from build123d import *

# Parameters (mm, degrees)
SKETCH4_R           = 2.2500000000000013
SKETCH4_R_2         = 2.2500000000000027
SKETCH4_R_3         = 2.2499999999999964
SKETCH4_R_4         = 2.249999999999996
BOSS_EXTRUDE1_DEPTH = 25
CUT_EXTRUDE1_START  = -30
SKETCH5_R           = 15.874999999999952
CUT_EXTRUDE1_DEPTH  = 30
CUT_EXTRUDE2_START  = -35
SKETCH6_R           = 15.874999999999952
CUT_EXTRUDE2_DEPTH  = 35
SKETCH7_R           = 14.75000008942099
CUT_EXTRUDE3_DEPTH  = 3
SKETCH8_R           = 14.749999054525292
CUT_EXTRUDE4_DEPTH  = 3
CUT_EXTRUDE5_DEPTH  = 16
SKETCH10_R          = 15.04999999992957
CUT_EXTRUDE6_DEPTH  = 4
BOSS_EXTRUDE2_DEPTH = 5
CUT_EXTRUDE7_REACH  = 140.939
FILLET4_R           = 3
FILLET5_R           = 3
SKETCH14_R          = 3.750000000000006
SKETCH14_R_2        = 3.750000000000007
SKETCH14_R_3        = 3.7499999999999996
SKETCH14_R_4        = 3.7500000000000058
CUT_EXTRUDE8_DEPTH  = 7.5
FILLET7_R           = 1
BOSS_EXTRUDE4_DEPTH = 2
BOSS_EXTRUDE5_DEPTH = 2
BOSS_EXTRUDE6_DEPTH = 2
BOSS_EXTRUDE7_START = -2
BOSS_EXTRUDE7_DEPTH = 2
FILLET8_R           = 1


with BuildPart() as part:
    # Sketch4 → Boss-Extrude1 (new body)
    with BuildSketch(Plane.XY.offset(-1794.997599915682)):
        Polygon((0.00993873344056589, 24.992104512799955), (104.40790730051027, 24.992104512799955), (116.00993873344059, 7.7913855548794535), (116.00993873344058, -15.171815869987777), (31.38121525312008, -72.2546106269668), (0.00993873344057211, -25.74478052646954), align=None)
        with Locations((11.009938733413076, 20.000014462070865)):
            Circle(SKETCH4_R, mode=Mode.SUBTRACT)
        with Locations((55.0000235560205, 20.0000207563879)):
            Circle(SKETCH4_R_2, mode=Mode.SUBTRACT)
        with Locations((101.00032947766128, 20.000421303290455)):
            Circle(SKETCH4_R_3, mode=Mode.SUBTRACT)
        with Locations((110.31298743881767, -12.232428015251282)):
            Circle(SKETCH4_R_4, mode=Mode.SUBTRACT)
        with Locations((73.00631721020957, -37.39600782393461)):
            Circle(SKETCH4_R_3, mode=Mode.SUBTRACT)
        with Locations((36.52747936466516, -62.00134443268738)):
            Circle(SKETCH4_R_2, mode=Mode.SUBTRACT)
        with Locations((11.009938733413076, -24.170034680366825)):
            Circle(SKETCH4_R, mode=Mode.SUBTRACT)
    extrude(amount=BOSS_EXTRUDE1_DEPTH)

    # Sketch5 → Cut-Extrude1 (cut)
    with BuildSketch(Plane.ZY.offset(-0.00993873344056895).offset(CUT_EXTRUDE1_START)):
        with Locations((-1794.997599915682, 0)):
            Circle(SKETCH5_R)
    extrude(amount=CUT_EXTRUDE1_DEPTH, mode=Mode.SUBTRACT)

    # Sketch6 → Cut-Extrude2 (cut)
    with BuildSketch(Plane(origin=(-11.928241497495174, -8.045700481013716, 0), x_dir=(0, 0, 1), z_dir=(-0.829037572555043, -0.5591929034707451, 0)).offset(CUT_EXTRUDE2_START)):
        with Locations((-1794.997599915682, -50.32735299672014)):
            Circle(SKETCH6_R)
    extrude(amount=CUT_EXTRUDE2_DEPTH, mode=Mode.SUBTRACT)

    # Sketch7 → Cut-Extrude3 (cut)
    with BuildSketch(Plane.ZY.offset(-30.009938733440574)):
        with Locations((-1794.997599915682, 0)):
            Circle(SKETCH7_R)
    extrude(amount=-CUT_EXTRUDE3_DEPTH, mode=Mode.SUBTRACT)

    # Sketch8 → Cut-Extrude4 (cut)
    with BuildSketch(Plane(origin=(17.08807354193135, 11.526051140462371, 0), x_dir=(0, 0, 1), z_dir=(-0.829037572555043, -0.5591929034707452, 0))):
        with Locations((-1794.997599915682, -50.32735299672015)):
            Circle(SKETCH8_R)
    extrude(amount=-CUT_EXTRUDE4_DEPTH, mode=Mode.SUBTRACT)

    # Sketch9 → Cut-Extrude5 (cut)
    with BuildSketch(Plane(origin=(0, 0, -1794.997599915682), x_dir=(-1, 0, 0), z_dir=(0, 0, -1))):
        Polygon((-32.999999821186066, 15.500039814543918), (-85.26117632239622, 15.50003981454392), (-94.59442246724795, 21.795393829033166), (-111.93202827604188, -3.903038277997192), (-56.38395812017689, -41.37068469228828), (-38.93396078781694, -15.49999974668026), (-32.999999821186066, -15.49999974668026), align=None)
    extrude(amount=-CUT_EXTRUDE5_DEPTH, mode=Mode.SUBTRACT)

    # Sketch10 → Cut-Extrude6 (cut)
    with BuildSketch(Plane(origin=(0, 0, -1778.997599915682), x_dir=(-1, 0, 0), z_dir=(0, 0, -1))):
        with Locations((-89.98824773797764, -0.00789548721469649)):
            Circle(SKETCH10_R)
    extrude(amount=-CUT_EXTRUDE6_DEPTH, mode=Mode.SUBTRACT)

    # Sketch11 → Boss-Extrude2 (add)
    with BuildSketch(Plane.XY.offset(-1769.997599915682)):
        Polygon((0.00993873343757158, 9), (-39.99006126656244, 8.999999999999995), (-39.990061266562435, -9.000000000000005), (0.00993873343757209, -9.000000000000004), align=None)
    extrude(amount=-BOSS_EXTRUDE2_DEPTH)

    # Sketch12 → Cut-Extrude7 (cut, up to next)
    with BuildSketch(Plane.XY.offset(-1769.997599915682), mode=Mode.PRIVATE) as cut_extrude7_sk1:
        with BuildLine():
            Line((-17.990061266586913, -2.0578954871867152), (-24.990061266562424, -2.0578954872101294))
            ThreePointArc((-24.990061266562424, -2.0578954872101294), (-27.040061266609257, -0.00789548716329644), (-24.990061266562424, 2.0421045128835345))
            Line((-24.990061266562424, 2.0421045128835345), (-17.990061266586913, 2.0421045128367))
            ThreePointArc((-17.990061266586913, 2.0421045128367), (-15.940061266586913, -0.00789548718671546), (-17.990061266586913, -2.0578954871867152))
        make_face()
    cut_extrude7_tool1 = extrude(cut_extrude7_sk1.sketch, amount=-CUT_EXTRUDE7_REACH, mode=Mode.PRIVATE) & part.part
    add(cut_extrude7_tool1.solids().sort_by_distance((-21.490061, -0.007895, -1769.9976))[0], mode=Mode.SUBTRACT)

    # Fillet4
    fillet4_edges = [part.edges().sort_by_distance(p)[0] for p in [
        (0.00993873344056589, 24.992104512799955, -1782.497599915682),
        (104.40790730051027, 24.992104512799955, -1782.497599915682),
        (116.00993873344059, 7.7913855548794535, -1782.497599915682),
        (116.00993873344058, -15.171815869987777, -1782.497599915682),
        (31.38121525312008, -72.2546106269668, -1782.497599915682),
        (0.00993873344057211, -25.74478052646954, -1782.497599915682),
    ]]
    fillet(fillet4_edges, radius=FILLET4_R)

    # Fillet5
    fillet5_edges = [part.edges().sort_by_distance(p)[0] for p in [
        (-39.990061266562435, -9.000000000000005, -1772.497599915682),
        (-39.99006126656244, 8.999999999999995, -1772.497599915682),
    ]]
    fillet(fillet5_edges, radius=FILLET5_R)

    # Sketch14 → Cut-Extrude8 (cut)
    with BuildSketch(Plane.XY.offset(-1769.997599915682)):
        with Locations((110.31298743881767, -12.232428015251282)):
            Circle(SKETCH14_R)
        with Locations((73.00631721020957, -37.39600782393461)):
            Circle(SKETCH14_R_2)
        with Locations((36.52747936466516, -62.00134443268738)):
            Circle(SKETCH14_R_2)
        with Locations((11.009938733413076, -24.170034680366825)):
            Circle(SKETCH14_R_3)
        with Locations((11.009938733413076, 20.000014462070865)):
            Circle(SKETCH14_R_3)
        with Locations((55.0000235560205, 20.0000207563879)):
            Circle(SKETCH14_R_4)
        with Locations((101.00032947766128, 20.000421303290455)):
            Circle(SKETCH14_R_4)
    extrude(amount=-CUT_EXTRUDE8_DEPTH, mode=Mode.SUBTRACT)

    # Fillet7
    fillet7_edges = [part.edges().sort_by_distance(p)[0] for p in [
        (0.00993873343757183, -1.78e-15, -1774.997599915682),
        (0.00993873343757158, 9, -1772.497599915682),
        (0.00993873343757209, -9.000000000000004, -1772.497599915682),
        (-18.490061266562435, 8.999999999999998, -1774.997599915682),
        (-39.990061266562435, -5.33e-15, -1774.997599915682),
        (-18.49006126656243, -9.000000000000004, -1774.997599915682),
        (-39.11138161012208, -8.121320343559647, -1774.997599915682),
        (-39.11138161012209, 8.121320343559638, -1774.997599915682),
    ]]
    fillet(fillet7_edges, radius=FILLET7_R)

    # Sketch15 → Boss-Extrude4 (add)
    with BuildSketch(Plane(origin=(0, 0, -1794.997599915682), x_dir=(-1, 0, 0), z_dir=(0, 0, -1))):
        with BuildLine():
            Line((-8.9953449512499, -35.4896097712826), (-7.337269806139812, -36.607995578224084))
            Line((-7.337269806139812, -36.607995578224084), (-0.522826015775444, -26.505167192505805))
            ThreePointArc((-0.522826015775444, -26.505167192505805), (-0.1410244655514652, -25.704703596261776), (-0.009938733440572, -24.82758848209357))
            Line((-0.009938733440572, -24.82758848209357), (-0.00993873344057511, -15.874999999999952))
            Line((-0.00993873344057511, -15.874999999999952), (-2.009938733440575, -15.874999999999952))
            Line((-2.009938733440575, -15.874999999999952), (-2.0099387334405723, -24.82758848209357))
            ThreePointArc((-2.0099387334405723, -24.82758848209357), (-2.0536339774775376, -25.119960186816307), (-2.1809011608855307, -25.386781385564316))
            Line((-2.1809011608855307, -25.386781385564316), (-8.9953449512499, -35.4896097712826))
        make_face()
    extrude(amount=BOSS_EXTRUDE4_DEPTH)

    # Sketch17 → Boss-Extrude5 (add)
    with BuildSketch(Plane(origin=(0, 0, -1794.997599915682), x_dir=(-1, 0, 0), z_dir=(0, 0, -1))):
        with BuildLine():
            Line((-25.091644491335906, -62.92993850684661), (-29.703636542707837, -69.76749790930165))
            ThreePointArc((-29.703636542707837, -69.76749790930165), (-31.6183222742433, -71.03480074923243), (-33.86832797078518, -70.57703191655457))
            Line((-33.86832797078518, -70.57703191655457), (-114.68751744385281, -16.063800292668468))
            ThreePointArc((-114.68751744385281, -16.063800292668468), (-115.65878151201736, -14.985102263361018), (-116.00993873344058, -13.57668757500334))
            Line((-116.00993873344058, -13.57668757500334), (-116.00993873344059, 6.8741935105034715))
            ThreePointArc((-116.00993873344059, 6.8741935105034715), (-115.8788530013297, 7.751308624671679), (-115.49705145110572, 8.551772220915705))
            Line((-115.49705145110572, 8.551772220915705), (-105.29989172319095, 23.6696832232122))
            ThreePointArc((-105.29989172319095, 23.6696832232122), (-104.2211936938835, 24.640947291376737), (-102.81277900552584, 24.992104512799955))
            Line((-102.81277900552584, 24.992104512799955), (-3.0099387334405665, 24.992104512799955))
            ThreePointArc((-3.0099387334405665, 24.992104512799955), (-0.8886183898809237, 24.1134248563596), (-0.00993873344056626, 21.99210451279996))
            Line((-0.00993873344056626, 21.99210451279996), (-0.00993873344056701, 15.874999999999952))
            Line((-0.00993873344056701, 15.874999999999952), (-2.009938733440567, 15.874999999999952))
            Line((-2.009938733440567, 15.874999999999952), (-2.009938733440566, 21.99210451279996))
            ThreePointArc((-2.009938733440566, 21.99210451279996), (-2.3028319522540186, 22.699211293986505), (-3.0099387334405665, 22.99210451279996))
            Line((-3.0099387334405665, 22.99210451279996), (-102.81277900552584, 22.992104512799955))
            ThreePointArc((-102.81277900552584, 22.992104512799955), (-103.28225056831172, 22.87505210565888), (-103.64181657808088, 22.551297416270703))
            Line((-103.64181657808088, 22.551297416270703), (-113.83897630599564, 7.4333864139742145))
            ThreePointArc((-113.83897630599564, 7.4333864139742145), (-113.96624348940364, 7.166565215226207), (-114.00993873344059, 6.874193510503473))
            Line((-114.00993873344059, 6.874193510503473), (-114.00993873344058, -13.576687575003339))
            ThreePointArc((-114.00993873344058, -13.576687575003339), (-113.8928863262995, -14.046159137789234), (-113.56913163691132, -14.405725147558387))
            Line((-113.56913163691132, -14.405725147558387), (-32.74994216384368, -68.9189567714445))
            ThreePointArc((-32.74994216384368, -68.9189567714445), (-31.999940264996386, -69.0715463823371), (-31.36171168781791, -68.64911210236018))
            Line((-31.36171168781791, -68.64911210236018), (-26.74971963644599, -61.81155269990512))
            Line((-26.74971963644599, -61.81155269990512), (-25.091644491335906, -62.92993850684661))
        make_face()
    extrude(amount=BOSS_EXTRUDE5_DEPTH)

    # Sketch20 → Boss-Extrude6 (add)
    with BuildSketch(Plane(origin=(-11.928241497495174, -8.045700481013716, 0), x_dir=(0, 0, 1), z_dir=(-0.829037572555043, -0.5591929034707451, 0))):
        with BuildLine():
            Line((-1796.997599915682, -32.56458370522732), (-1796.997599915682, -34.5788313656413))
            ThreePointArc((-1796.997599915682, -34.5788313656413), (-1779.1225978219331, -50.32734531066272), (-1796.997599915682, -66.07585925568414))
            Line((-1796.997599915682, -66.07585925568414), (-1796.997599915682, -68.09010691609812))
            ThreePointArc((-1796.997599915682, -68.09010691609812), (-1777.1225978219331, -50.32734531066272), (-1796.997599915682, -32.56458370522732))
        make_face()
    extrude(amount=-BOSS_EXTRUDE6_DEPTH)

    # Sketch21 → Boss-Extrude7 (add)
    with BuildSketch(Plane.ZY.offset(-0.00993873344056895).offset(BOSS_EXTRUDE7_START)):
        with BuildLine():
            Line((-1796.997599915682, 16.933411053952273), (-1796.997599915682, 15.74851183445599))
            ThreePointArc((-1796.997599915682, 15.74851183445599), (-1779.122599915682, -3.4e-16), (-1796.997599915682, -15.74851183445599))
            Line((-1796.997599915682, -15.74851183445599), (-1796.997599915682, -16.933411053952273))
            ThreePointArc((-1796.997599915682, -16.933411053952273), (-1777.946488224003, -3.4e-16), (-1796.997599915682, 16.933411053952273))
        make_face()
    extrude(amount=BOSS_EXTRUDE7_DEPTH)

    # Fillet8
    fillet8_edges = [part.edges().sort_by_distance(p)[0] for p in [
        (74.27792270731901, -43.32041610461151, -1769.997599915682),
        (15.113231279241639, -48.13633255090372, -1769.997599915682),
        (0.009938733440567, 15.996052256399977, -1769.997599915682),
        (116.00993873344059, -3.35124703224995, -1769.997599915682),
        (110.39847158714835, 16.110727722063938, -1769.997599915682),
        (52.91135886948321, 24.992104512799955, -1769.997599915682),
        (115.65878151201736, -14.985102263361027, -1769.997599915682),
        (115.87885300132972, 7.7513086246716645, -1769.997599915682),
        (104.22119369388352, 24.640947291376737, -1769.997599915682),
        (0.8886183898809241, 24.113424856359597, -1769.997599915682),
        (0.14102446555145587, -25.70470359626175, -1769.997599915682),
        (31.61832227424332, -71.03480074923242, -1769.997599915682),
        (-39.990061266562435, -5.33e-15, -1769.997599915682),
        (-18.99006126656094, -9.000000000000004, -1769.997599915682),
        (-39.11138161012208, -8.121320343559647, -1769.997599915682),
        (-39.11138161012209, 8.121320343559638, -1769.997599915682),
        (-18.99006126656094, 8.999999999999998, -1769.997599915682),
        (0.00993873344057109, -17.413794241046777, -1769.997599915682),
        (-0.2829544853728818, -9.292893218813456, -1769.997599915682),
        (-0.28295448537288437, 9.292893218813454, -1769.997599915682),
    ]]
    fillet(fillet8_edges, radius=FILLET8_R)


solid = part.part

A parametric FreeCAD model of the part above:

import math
import FreeCAD as App
import Part
import Sketcher
from FreeCAD import Vector
Q = App.Units.Quantity


def edges_at(feature, points):
    """Names of the edges that pass closest to the given points."""
    edges = feature.Shape.Edges
    near = lambda p: min(range(len(edges)), key=lambda i: edges[i].distToShape(Part.Vertex(*p))[0])
    return sorted({f"Edge{near(p) + 1}" for p in points})

doc = App.newDocument("Part")
body = doc.addObject("PartDesign::Body", "Body")

sketch1 = doc.addObject("Sketcher::SketchObject", "Sketch")
body.addObject(sketch1)
sketch1.AttachmentSupport = (doc.XY_Plane, [""])
sketch1.MapMode = "FlatFace"
sketch1.AttachmentOffset = App.Placement(Vector(0, 0, -1794.9976), App.Rotation())
sketch1.addGeometry(Part.LineSegment(Vector(104.407907, 24.992105, 0), Vector(0.009939, 24.992105, 0)), False)
sketch1.addGeometry(Part.LineSegment(Vector(0.009939, 24.992105, 0), Vector(0.009939, -25.744781, 0)), False)
sketch1.addGeometry(Part.LineSegment(Vector(0.009939, -25.744781, 0), Vector(31.381215, -72.254611, 0)), False)
sketch1.addGeometry(Part.LineSegment(Vector(31.381215, -72.254611, 0), Vector(116.009939, -15.171816, 0)), False)
sketch1.addGeometry(Part.LineSegment(Vector(116.009939, -15.171816, 0), Vector(116.009939, 7.791386, 0)), False)
sketch1.addGeometry(Part.LineSegment(Vector(116.009939, 7.791386, 0), Vector(104.407907, 24.992105, 0)), False)
sketch1.addGeometry(Part.Circle(Vector(73.006317, -37.396008, 0), Vector(0, 0, 1), 2.25), False)
sketch1.addGeometry(Part.Circle(Vector(36.527479, -62.001344, 0), Vector(0, 0, 1), 2.25), False)
sketch1.addGeometry(Part.Circle(Vector(11.009939, -24.170035, 0), Vector(0, 0, 1), 2.25), False)
sketch1.addGeometry(Part.Circle(Vector(110.312987, -12.232428, 0), Vector(0, 0, 1), 2.25), False)
sketch1.addGeometry(Part.Circle(Vector(101.000329, 20.000421, 0), Vector(0, 0, 1), 2.25), False)
sketch1.addGeometry(Part.Circle(Vector(55.000024, 20.000021, 0), Vector(0, 0, 1), 2.25), False)
sketch1.addGeometry(Part.Circle(Vector(11.009939, 20.000014, 0), Vector(0, 0, 1), 2.25), False)
sketch1.addConstraint(Sketcher.Constraint("Coincident", 0, 2, 1, 1))
sketch1.addConstraint(Sketcher.Constraint("Coincident", 1, 2, 2, 1))
sketch1.addConstraint(Sketcher.Constraint("Coincident", 2, 2, 3, 1))
sketch1.addConstraint(Sketcher.Constraint("Coincident", 3, 2, 4, 1))
sketch1.addConstraint(Sketcher.Constraint("Coincident", 4, 2, 5, 1))
sketch1.addConstraint(Sketcher.Constraint("Coincident", 5, 2, 0, 1))
sketch1.addConstraint(Sketcher.Constraint("Horizontal", 0))
sketch1.addConstraint(Sketcher.Constraint("Vertical", 1))
sketch1.addConstraint(Sketcher.Constraint("Vertical", 4))
sketch1.addConstraint(Sketcher.Constraint("Equal", 6, 7))
sketch1.addConstraint(Sketcher.Constraint("Equal", 7, 8))
sketch1.addConstraint(Sketcher.Constraint("Equal", 8, 9))
sketch1.addConstraint(Sketcher.Constraint("Equal", 9, 10))
sketch1.addConstraint(Sketcher.Constraint("Equal", 10, 11))
sketch1.addConstraint(Sketcher.Constraint("Equal", 11, 12))
sketch1.addConstraint(Sketcher.Constraint("Perpendicular", 2, 3))
sketch1.addConstraint(Sketcher.Constraint("Perpendicular", 3, 5))
sketch1.addConstraint(Sketcher.Constraint("Vertical", 8, 3, 12, 3))
sketch1.addConstraint(Sketcher.Constraint("Diameter", 6, Q("4.5 mm")))
sketch1.addConstraint(Sketcher.Constraint("Angle", 2, Q("-56 deg")))
sketch1.addConstraint(Sketcher.Constraint("DistanceX", 0, 2, 12, 3, Q("11 mm")))
sketch1.addConstraint(Sketcher.Constraint("DistanceY", 4, 1, 4, 2, Q("22.963201 mm")))
sketch1.addConstraint(Sketcher.Constraint("DistanceX", 0, 2, 0, 1, Q("104.397969 mm")))
sketch1.addConstraint(Sketcher.Constraint("DistanceY", 11, 3, 10, 3, Q("0.000401 mm")))
sketch1.addConstraint(Sketcher.Constraint("DistanceY", 1, 2, 11, 3, Q("45.744801 mm")))
sketch1.addConstraint(Sketcher.Constraint("DistanceX", 2, 2, 6, 3, Q("41.625102 mm")))
sketch1.addConstraint(Sketcher.Constraint("Distance", 2, Q("56.100992 mm")))
sketch1.addConstraint(Sketcher.Constraint("DistanceY", 1, 2, 1, 1, Q("50.736885 mm")))
sketch1.addConstraint(Sketcher.Constraint("DistanceX", -1, 1, 7, 3, Q("36.527479 mm")))
sketch1.addConstraint(Sketcher.Constraint("DistanceX", -1, 1, 8, 3, Q("11.009939 mm")))
sketch1.addConstraint(Sketcher.Constraint("DistanceY", 9, 3, -1, 1, Q("12.232428 mm")))
sketch1.addConstraint(Sketcher.Constraint("DistanceX", -1, 1, 10, 3, Q("101.000329 mm")))
sketch1.addConstraint(Sketcher.Constraint("DistanceY", -1, 1, 10, 3, Q("20.000421 mm")))
sketch1.addConstraint(Sketcher.Constraint("DistanceY", 7, 3, 8, 3, Q("37.83131 mm")))
sketch1.addConstraint(Sketcher.Constraint("DistanceX", 6, 3, 9, 3, Q("37.30667 mm")))
sketch1.addConstraint(Sketcher.Constraint("DistanceY", 6, 3, 9, 3, Q("25.16358 mm")))
sketch1.addConstraint(Sketcher.Constraint("DistanceY", 8, 3, 12, 3, Q("44.170049 mm")))
sketch1.addConstraint(Sketcher.Constraint("DistanceY", 12, 3, 0, 2, Q("4.99209 mm")))
sketch1.addConstraint(Sketcher.Constraint("DistanceX", -1, 1, 11, 3, Q("55.000024 mm")))
pad1 = doc.addObject("PartDesign::Pad", "Pad")
body.addObject(pad1)
pad1.Profile = sketch1
pad1.Length = 25

sketch2 = doc.addObject("Sketcher::SketchObject", "Sketch001")
body.addObject(sketch2)
sketch2.AttachmentSupport = (doc.YZ_Plane, [""])
sketch2.MapMode = "FlatFace"
sketch2.AttachmentOffset = App.Placement(Vector(0, 0, 30.009939), App.Rotation())
sketch2.addGeometry(Part.Circle(Vector(0, -1794.9976, 0), Vector(0, 0, 1), 15.875), False)
sketch2.addConstraint(Sketcher.Constraint("PointOnObject", 0, 3, -2))
sketch2.addConstraint(Sketcher.Constraint("Diameter", 0, Q("31.75 mm")))
sketch2.addConstraint(Sketcher.Constraint("DistanceY", 0, 3, -1, 1, Q("1794.9976 mm")))
pocket1 = doc.addObject("PartDesign::Pocket", "Pocket")
body.addObject(pocket1)
pocket1.Profile = sketch2
pocket1.Length = 30

sketch3 = doc.addObject("Sketcher::SketchObject", "Sketch002")
body.addObject(sketch3)
sketch3.Placement = App.Placement(Vector(17.088074, 11.526051, 0), App.Rotation(Vector(0, 0, 1), Vector(-0.559192903, 0.829037573, 0), Vector(-0.829037573, -0.559192903, 0), "ZXY"))
sketch3.addGeometry(Part.Circle(Vector(-1795, -50, 0), Vector(0, 0, 1), 16), False)
sketch3.addConstraint(Sketcher.Constraint("Diameter", 0, Q("31.75 mm")))
sketch3.addConstraint(Sketcher.Constraint("DistanceX", 0, 3, -1, 1, Q("1794.9976 mm")))
sketch3.addConstraint(Sketcher.Constraint("DistanceY", 0, 3, -1, 1, Q("50.327353 mm")))
pocket2 = doc.addObject("PartDesign::Pocket", "Pocket001")
body.addObject(pocket2)
pocket2.Profile = sketch3
pocket2.Length = 35
pocket2.Reversed = True

sketch4 = doc.addObject("Sketcher::SketchObject", "Sketch003")
body.addObject(sketch4)
sketch4.AttachmentSupport = (doc.YZ_Plane, [""])
sketch4.MapMode = "FlatFace"
sketch4.AttachmentOffset = App.Placement(Vector(0, 0, 30.009939), App.Rotation())
sketch4.addGeometry(Part.Circle(Vector(0, -1794.9976, 0), Vector(0, 0, 1), 14.75), False)
sketch4.addConstraint(Sketcher.Constraint("PointOnObject", 0, 3, -2))
sketch4.addConstraint(Sketcher.Constraint("Diameter", 0, Q("29.5 mm")))
sketch4.addConstraint(Sketcher.Constraint("DistanceY", 0, 3, -1, 1, Q("1794.9976 mm")))
pocket3 = doc.addObject("PartDesign::Pocket", "Pocket002")
body.addObject(pocket3)
pocket3.Profile = sketch4
pocket3.Length = 3
pocket3.Reversed = True

sketch5 = doc.addObject("Sketcher::SketchObject", "Sketch004")
body.addObject(sketch5)
sketch5.Placement = App.Placement(Vector(17.088074, 11.526051, 0), App.Rotation(Vector(0, 0, 1), Vector(-0.559192903, 0.829037573, 0), Vector(-0.829037573, -0.559192903, 0), "ZXY"))
sketch5.addGeometry(Part.Circle(Vector(-1795, -50, 0), Vector(0, 0, 1), 15), False)
sketch5.addConstraint(Sketcher.Constraint("Diameter", 0, Q("29.499998 mm")))
sketch5.addConstraint(Sketcher.Constraint("DistanceX", 0, 3, -1, 1, Q("1794.9976 mm")))
sketch5.addConstraint(Sketcher.Constraint("DistanceY", 0, 3, -1, 1, Q("50.327353 mm")))
pocket4 = doc.addObject("PartDesign::Pocket", "Pocket003")
body.addObject(pocket4)
pocket4.Profile = sketch5
pocket4.Length = 3

sketch6 = doc.addObject("Sketcher::SketchObject", "Sketch005")
body.addObject(sketch6)
sketch6.AttachmentSupport = (doc.XY_Plane, [""])
sketch6.MapMode = "FlatFace"
sketch6.AttachmentOffset = App.Placement(Vector(0, 0, -1794.9976), App.Rotation())
sketch6.addGeometry(Part.LineSegment(Vector(33, 16, 0), Vector(85, 16, 0)), False)
sketch6.addGeometry(Part.LineSegment(Vector(85, 16, 0), Vector(95, 22, 0)), False)
sketch6.addGeometry(Part.LineSegment(Vector(95, 22, 0), Vector(112, -4, 0)), False)
sketch6.addGeometry(Part.LineSegment(Vector(112, -4, 0), Vector(56, -41, 0)), False)
sketch6.addGeometry(Part.LineSegment(Vector(56, -41, 0), Vector(39, -15, 0)), False)
sketch6.addGeometry(Part.LineSegment(Vector(39, -15, 0), Vector(33, -15, 0)), False)
sketch6.addGeometry(Part.LineSegment(Vector(33, -15, 0), Vector(33, 16, 0)), False)
sketch6.addConstraint(Sketcher.Constraint("Coincident", 0, 2, 1, 1))
sketch6.addConstraint(Sketcher.Constraint("Coincident", 1, 2, 2, 1))
sketch6.addConstraint(Sketcher.Constraint("Coincident", 2, 2, 3, 1))
sketch6.addConstraint(Sketcher.Constraint("Coincident", 3, 2, 4, 1))
sketch6.addConstraint(Sketcher.Constraint("Coincident", 4, 2, 5, 1))
sketch6.addConstraint(Sketcher.Constraint("Coincident", 5, 2, 6, 1))
sketch6.addConstraint(Sketcher.Constraint("Coincident", 6, 2, 0, 1))
sketch6.addConstraint(Sketcher.Constraint("Horizontal", 0))
sketch6.addConstraint(Sketcher.Constraint("Horizontal", 5))
sketch6.addConstraint(Sketcher.Constraint("Vertical", 6))
sketch6.addConstraint(Sketcher.Constraint("Parallel", 1, 3))
sketch6.addConstraint(Sketcher.Constraint("Perpendicular", 3, 4))
sketch6.addConstraint(Sketcher.Constraint("Angle", 1, Q("34 deg")))
sketch6.addConstraint(Sketcher.Constraint("DistanceX", -1, 1, 5, 2, Q("33 mm")))
sketch6.addConstraint(Sketcher.Constraint("DistanceY", 4, 2, -1, 1, Q("15.5 mm")))
sketch6.addConstraint(Sketcher.Constraint("DistanceX", 5, 2, 5, 1, Q("5.933961 mm")))
sketch6.addConstraint(Sketcher.Constraint("DistanceY", 6, 1, 6, 2, Q("31.00004 mm")))
sketch6.addConstraint(Sketcher.Constraint("Distance", 1, Q("11.257929 mm")))
sketch6.addConstraint(Sketcher.Constraint("Distance", 3, Q("67.003079 mm")))
sketch6.addConstraint(Sketcher.Constraint("DistanceX", 0, 1, 0, 2, Q("52.261177 mm")))
sketch6.addConstraint(Sketcher.Constraint("DistanceX", -1, 1, 2, 2, Q("111.932028 mm")))
pocket5 = doc.addObject("PartDesign::Pocket", "Pocket004")
body.addObject(pocket5)
pocket5.Profile = sketch6
pocket5.Length = 16
pocket5.Reversed = True

sketch7 = doc.addObject("Sketcher::SketchObject", "Sketch006")
body.addObject(sketch7)
sketch7.AttachmentSupport = (doc.XY_Plane, [""])
sketch7.MapMode = "FlatFace"
sketch7.AttachmentOffset = App.Placement(Vector(0, 0, -1778.9976), App.Rotation())
sketch7.addGeometry(Part.Circle(Vector(90, 0, 0), Vector(0, 0, 1), 15), False)
sketch7.addConstraint(Sketcher.Constraint("Diameter", 0, Q("30.1 mm")))
sketch7.addConstraint(Sketcher.Constraint("DistanceX", -1, 1, 0, 3, Q("89.988248 mm")))
sketch7.addConstraint(Sketcher.Constraint("DistanceY", 0, 3, -1, 1, Q("0.007895 mm")))
pocket6 = doc.addObject("PartDesign::Pocket", "Pocket005")
body.addObject(pocket6)
pocket6.Profile = sketch7
pocket6.Length = 4
pocket6.Reversed = True

sketch8 = doc.addObject("Sketcher::SketchObject", "Sketch007")
body.addObject(sketch8)
sketch8.AttachmentSupport = (doc.XY_Plane, [""])
sketch8.MapMode = "FlatFace"
sketch8.AttachmentOffset = App.Placement(Vector(0, 0, -1769.9976), App.Rotation())
sketch8.addGeometry(Part.LineSegment(Vector(0, 9, 0), Vector(-40, 9, 0)), False)
sketch8.addGeometry(Part.LineSegment(Vector(-40, 9, 0), Vector(-40, -9, 0)), False)
sketch8.addGeometry(Part.LineSegment(Vector(-40, -9, 0), Vector(0, -9, 0)), False)
sketch8.addGeometry(Part.LineSegment(Vector(0, -9, 0), Vector(0, 9, 0)), False)
sketch8.addConstraint(Sketcher.Constraint("Coincident", 0, 2, 1, 1))
sketch8.addConstraint(Sketcher.Constraint("Coincident", 1, 2, 2, 1))
sketch8.addConstraint(Sketcher.Constraint("Coincident", 2, 2, 3, 1))
sketch8.addConstraint(Sketcher.Constraint("Coincident", 3, 2, 0, 1))
sketch8.addConstraint(Sketcher.Constraint("Horizontal", 0))
sketch8.addConstraint(Sketcher.Constraint("Vertical", 1))
sketch8.addConstraint(Sketcher.Constraint("Horizontal", 2))
sketch8.addConstraint(Sketcher.Constraint("Vertical", 3))
sketch8.addConstraint(Sketcher.Constraint("DistanceX", 0, 2, 0, 1, Q("40 mm")))
sketch8.addConstraint(Sketcher.Constraint("DistanceY", 1, 2, 1, 1, Q("18 mm")))
sketch8.addConstraint(Sketcher.Constraint("DistanceY", -1, 1, 0, 2, Q("9 mm")))
sketch8.addConstraint(Sketcher.Constraint("DistanceX", 0, 2, -1, 1, Q("39.990061 mm")))
pad2 = doc.addObject("PartDesign::Pad", "Pad001")
body.addObject(pad2)
pad2.Profile = sketch8
pad2.Length = 5
pad2.Reversed = True

sketch9 = doc.addObject("Sketcher::SketchObject", "Sketch008")
body.addObject(sketch9)
sketch9.AttachmentSupport = (doc.XY_Plane, [""])
sketch9.MapMode = "FlatFace"
sketch9.AttachmentOffset = App.Placement(Vector(0, 0, -1769.9976), App.Rotation())
sketch9.addGeometry(Part.LineSegment(Vector(-25, -2.1, 0), Vector(-18, -2.1, 0)), False)
sketch9.addGeometry(Part.ArcOfCircle(Part.Circle(Vector(-18, 0, 0), Vector(0, 0, 1), 2), math.radians(-90), math.radians(90)), False)
sketch9.addGeometry(Part.LineSegment(Vector(-18, 2, 0), Vector(-25, 2, 0)), False)
sketch9.addGeometry(Part.ArcOfCircle(Part.Circle(Vector(-25, 0, 0), Vector(0, 0, 1), 2), math.radians(90), math.radians(270)), False)
sketch9.addConstraint(Sketcher.Constraint("Tangent", 0, 2, 1, 1))
sketch9.addConstraint(Sketcher.Constraint("Tangent", 1, 2, 2, 1))
sketch9.addConstraint(Sketcher.Constraint("Tangent", 2, 2, 3, 1))
sketch9.addConstraint(Sketcher.Constraint("Tangent", 3, 2, 0, 1))
sketch9.addConstraint(Sketcher.Constraint("Horizontal", 0))
sketch9.addConstraint(Sketcher.Constraint("Horizontal", 2))
sketch9.addConstraint(Sketcher.Constraint("DistanceX", 0, 1, 0, 2, Q("7 mm")))
sketch9.addConstraint(Sketcher.Constraint("Radius", 1, Q("2.05 mm")))
sketch9.addConstraint(Sketcher.Constraint("DistanceX", 1, 3, -1, 1, Q("17.990061 mm")))
sketch9.addConstraint(Sketcher.Constraint("DistanceY", 1, 3, -1, 1, Q("0.007895 mm")))
pocket7 = doc.addObject("PartDesign::Pocket", "Pocket006")
body.addObject(pocket7)
pocket7.Profile = sketch9
pocket7.Type = "UpToFirst"
doc.recompute()

fillet = doc.addObject("PartDesign::Fillet", "Fillet")
body.addObject(fillet)
fillet.Base = (pocket7, edges_at(pocket7, [
    (0.01, 24.992, -1782.498),
    (104.408, 24.992, -1782.498),
    (116.01, 7.791, -1782.498),
    (116.01, -15.172, -1782.498),
    (31.381, -72.255, -1782.498),
    (0.01, -25.745, -1782.498),
]))
fillet.Radius = 3
doc.recompute()

fillet2 = doc.addObject("PartDesign::Fillet", "Fillet001")
body.addObject(fillet2)
fillet2.Base = (fillet, edges_at(fillet, [(-39.99, -9, -1772.498), (-39.99, 9, -1772.498)]))
fillet2.Radius = 3

sketch10 = doc.addObject("Sketcher::SketchObject", "Sketch009")
body.addObject(sketch10)
sketch10.AttachmentSupport = (doc.XY_Plane, [""])
sketch10.MapMode = "FlatFace"
sketch10.AttachmentOffset = App.Placement(Vector(0, 0, -1769.9976), App.Rotation())
sketch10.addGeometry(Part.Circle(Vector(110.312987, -12.232428, 0), Vector(0, 0, 1), 3.75), False)
sketch10.addGeometry(Part.Circle(Vector(73.006317, -37.396008, 0), Vector(0, 0, 1), 3.75), False)
sketch10.addGeometry(Part.Circle(Vector(36.527479, -62.001344, 0), Vector(0, 0, 1), 3.75), False)
sketch10.addGeometry(Part.Circle(Vector(11.009939, -24.170035, 0), Vector(0, 0, 1), 3.75), False)
sketch10.addGeometry(Part.Circle(Vector(11.009939, 20.000014, 0), Vector(0, 0, 1), 3.75), False)
sketch10.addGeometry(Part.Circle(Vector(55.000024, 20.000021, 0), Vector(0, 0, 1), 3.75), False)
sketch10.addGeometry(Part.Circle(Vector(101.000329, 20.000421, 0), Vector(0, 0, 1), 3.75), False)
sketch10.addConstraint(Sketcher.Constraint("Equal", 0, 1))
sketch10.addConstraint(Sketcher.Constraint("Equal", 1, 2))
sketch10.addConstraint(Sketcher.Constraint("Equal", 2, 3))
sketch10.addConstraint(Sketcher.Constraint("Equal", 3, 4))
sketch10.addConstraint(Sketcher.Constraint("Equal", 4, 5))
sketch10.addConstraint(Sketcher.Constraint("Equal", 5, 6))
sketch10.addConstraint(Sketcher.Constraint("Vertical", 3, 3, 4, 3))
sketch10.addConstraint(Sketcher.Constraint("Diameter", 0, Q("7.5 mm")))
sketch10.addConstraint(Sketcher.Constraint("DistanceY", 5, 3, 6, 3, Q("0.000401 mm")))
sketch10.addConstraint(Sketcher.Constraint("DistanceY", 0, 3, -1, 1, Q("12.232428 mm")))
sketch10.addConstraint(Sketcher.Constraint("DistanceX", -1, 1, 2, 3, Q("36.527479 mm")))
sketch10.addConstraint(Sketcher.Constraint("DistanceX", -1, 1, 3, 3, Q("11.009939 mm")))
sketch10.addConstraint(Sketcher.Constraint("DistanceY", -1, 1, 5, 3, Q("20.000021 mm")))
sketch10.addConstraint(Sketcher.Constraint("DistanceX", -1, 1, 6, 3, Q("101.000329 mm")))
sketch10.addConstraint(Sketcher.Constraint("DistanceX", 1, 3, 0, 3, Q("37.30667 mm")))
sketch10.addConstraint(Sketcher.Constraint("DistanceY", 1, 3, 0, 3, Q("25.16358 mm")))
sketch10.addConstraint(Sketcher.Constraint("DistanceX", 2, 3, 0, 3, Q("73.785508 mm")))
sketch10.addConstraint(Sketcher.Constraint("DistanceY", 2, 3, 3, 3, Q("37.83131 mm")))
sketch10.addConstraint(Sketcher.Constraint("DistanceY", 3, 3, 4, 3, Q("44.170049 mm")))
sketch10.addConstraint(Sketcher.Constraint("DistanceY", 2, 3, -1, 1, Q("62.001344 mm")))
sketch10.addConstraint(Sketcher.Constraint("DistanceX", -1, 1, 5, 3, Q("55.000024 mm")))
pocket8 = doc.addObject("PartDesign::Pocket", "Pocket007")
body.addObject(pocket8)
pocket8.Profile = sketch10
pocket8.Length = 7.5
doc.recompute()

fillet3 = doc.addObject("PartDesign::Fillet", "Fillet002")
body.addObject(fillet3)
fillet3.Base = (pocket8, edges_at(pocket8, [
    (0.01, 0, -1774.998),
    (0.01, 9, -1772.498),
    (0.01, -9, -1772.498),
    (-18.49, 9, -1774.998),
    (-39.99, 0, -1774.998),
    (-18.49, -9, -1774.998),
    (-39.111, -8.121, -1774.998),
    (-39.111, 8.121, -1774.998),
]))
fillet3.Radius = 1

sketch11 = doc.addObject("Sketcher::SketchObject", "Sketch010")
body.addObject(sketch11)
sketch11.AttachmentSupport = (doc.XY_Plane, [""])
sketch11.MapMode = "FlatFace"
sketch11.AttachmentOffset = App.Placement(Vector(0, 0, -1794.9976), App.Rotation())
sketch11.addGeometry(Part.LineSegment(Vector(9, -35.5, 0), Vector(7.3, -36.6, 0)), False)
sketch11.addGeometry(Part.LineSegment(Vector(7.3, -36.6, 0), Vector(0.5, -26.5, 0)), False)
sketch11.addGeometry(Part.ArcOfCircle(Part.Circle(Vector(3, -24.8, 0), Vector(0, 0, 1), 3), math.radians(180), math.radians(214)), False)
sketch11.addGeometry(Part.LineSegment(Vector(0, -24.8, 0), Vector(0, -15.9, 0)), False)
sketch11.addGeometry(Part.LineSegment(Vector(0, -15.9, 0), Vector(2, -15.9, 0)), False)
sketch11.addGeometry(Part.LineSegment(Vector(2, -15.9, 0), Vector(2, -24.8, 0)), False)
sketch11.addGeometry(Part.ArcOfCircle(Part.Circle(Vector(3, -24.8, 0), Vector(0, 0, 1), 1), math.radians(180), math.radians(214)), False)
sketch11.addGeometry(Part.LineSegment(Vector(2.2, -25.4, 0), Vector(9, -35.5, 0)), False)
sketch11.addConstraint(Sketcher.Constraint("Coincident", 0, 2, 1, 1))
sketch11.addConstraint(Sketcher.Constraint("Tangent", 1, 2, 2, 2))
sketch11.addConstraint(Sketcher.Constraint("Tangent", 2, 1, 3, 1))
sketch11.addConstraint(Sketcher.Constraint("Coincident", 3, 2, 4, 1))
sketch11.addConstraint(Sketcher.Constraint("Coincident", 4, 2, 5, 1))
sketch11.addConstraint(Sketcher.Constraint("Tangent", 5, 2, 6, 1))
sketch11.addConstraint(Sketcher.Constraint("Tangent", 6, 2, 7, 1))
sketch11.addConstraint(Sketcher.Constraint("Coincident", 7, 2, 0, 1))
sketch11.addConstraint(Sketcher.Constraint("Vertical", 3))
sketch11.addConstraint(Sketcher.Constraint("Horizontal", 4))
sketch11.addConstraint(Sketcher.Constraint("Vertical", 5))
sketch11.addConstraint(Sketcher.Constraint("Coincident", 6, 3, 2, 3))
sketch11.addConstraint(Sketcher.Constraint("Perpendicular", 0, 1))
sketch11.addConstraint(Sketcher.Constraint("Parallel", 1, 7))
sketch11.addConstraint(Sketcher.Constraint("Radius", 2, Q("3 mm")))
sketch11.addConstraint(Sketcher.Constraint("Radius", 6, Q("1 mm")))
sketch11.addConstraint(Sketcher.Constraint("Angle", 0, Q("-146 deg")))
sketch11.addConstraint(Sketcher.Constraint("DistanceY", 3, 2, -1, 1, Q("15.875 mm")))
sketch11.addConstraint(Sketcher.Constraint("DistanceY", 3, 1, 3, 2, Q("8.952588 mm")))
sketch11.addConstraint(Sketcher.Constraint("DistanceX", -1, 1, 6, 2, Q("2.180901 mm")))
sketch11.addConstraint(Sketcher.Constraint("DistanceX", -1, 1, 0, 2, Q("7.33727 mm")))
pad3 = doc.addObject("PartDesign::Pad", "Pad002")
body.addObject(pad3)
pad3.Profile = sketch11
pad3.Length = 2
pad3.Reversed = True

sketch12 = doc.addObject("Sketcher::SketchObject", "Sketch011")
body.addObject(sketch12)
sketch12.AttachmentSupport = (doc.XY_Plane, [""])
sketch12.MapMode = "FlatFace"
sketch12.AttachmentOffset = App.Placement(Vector(0, 0, -1794.9976), App.Rotation())
sketch12.addGeometry(Part.LineSegment(Vector(29.7, -69.8, 0), Vector(25.1, -62.9, 0)), False)
sketch12.addGeometry(Part.LineSegment(Vector(25.1, -62.9, 0), Vector(26.7, -61.8, 0)), False)
sketch12.addGeometry(Part.LineSegment(Vector(26.7, -61.8, 0), Vector(31.4, -68.6, 0)), False)
sketch12.addGeometry(Part.ArcOfCircle(Part.Circle(Vector(32.2, -68.1, 0), Vector(0, 0, 1), 1), math.radians(-146), math.radians(-56)), False)
sketch12.addGeometry(Part.LineSegment(Vector(32.7, -68.9, 0), Vector(113.6, -14.4, 0)), False)
sketch12.addGeometry(Part.ArcOfCircle(Part.Circle(Vector(113, -13.6, 0), Vector(0, 0, 1), 1), math.radians(-56), math.radians(0)), False)
sketch12.addGeometry(Part.LineSegment(Vector(114, -13.6, 0), Vector(114, 6.9, 0)), False)
sketch12.addGeometry(Part.ArcOfCircle(Part.Circle(Vector(113, 6.9, 0), Vector(0, 0, 1), 1), math.radians(0), math.radians(34)), False)
sketch12.addGeometry(Part.LineSegment(Vector(113.8, 7.4, 0), Vector(103.6, 22.6, 0)), False)
sketch12.addGeometry(Part.ArcOfCircle(Part.Circle(Vector(102.8, 22, 0), Vector(0, 0, 1), 1), math.radians(34), math.radians(90)), False)
sketch12.addGeometry(Part.LineSegment(Vector(102.8, 23, 0), Vector(3, 23, 0)), False)
sketch12.addGeometry(Part.ArcOfCircle(Part.Circle(Vector(3, 22, 0), Vector(0, 0, 1), 1), math.radians(90), math.radians(180)), False)
sketch12.addGeometry(Part.LineSegment(Vector(2, 22, 0), Vector(2, 15.9, 0)), False)
sketch12.addGeometry(Part.LineSegment(Vector(2, 15.9, 0), Vector(0, 15.9, 0)), False)
sketch12.addGeometry(Part.LineSegment(Vector(0, 15.9, 0), Vector(0, 22, 0)), False)
sketch12.addGeometry(Part.ArcOfCircle(Part.Circle(Vector(3, 22, 0), Vector(0, 0, 1), 3), math.radians(90), math.radians(180)), False)
sketch12.addGeometry(Part.LineSegment(Vector(3, 25, 0), Vector(102.8, 25, 0)), False)
sketch12.addGeometry(Part.ArcOfCircle(Part.Circle(Vector(102.8, 22, 0), Vector(0, 0, 1), 3), math.radians(34), math.radians(90)), False)
sketch12.addGeometry(Part.LineSegment(Vector(105.3, 23.7, 0), Vector(115.5, 8.6, 0)), False)
sketch12.addGeometry(Part.ArcOfCircle(Part.Circle(Vector(113, 6.9, 0), Vector(0, 0, 1), 3), math.radians(0), math.radians(34)), False)
sketch12.addGeometry(Part.LineSegment(Vector(116, 6.9, 0), Vector(116, -13.6, 0)), False)
sketch12.addGeometry(Part.ArcOfCircle(Part.Circle(Vector(113, -13.6, 0), Vector(0, 0, 1), 3), math.radians(-56), math.radians(0)), False)
sketch12.addGeometry(Part.LineSegment(Vector(114.7, -16.1, 0), Vector(33.9, -70.6, 0)), False)
sketch12.addGeometry(Part.ArcOfCircle(Part.Circle(Vector(32.2, -68.1, 0), Vector(0, 0, 1), 3), math.radians(-146), math.radians(-56)), False)
sketch12.addConstraint(Sketcher.Constraint("Coincident", 0, 2, 1, 1))
sketch12.addConstraint(Sketcher.Constraint("Coincident", 1, 2, 2, 1))
sketch12.addConstraint(Sketcher.Constraint("Tangent", 2, 2, 3, 1))
sketch12.addConstraint(Sketcher.Constraint("Tangent", 3, 2, 4, 1))
sketch12.addConstraint(Sketcher.Constraint("Tangent", 4, 2, 5, 1))
sketch12.addConstraint(Sketcher.Constraint("Tangent", 5, 2, 6, 1))
sketch12.addConstraint(Sketcher.Constraint("Tangent", 6, 2, 7, 1))
sketch12.addConstraint(Sketcher.Constraint("Tangent", 7, 2, 8, 1))
sketch12.addConstraint(Sketcher.Constraint("Tangent", 8, 2, 9, 1))
sketch12.addConstraint(Sketcher.Constraint("Tangent", 9, 2, 10, 1))
sketch12.addConstraint(Sketcher.Constraint("Tangent", 10, 2, 11, 1))
sketch12.addConstraint(Sketcher.Constraint("Tangent", 11, 2, 12, 1))
sketch12.addConstraint(Sketcher.Constraint("Coincident", 12, 2, 13, 1))
sketch12.addConstraint(Sketcher.Constraint("Coincident", 13, 2, 14, 1))
sketch12.addConstraint(Sketcher.Constraint("Tangent", 14, 2, 15, 2))
sketch12.addConstraint(Sketcher.Constraint("Tangent", 15, 1, 16, 1))
sketch12.addConstraint(Sketcher.Constraint("Tangent", 16, 2, 17, 2))
sketch12.addConstraint(Sketcher.Constraint("Tangent", 17, 1, 18, 1))
sketch12.addConstraint(Sketcher.Constraint("Tangent", 18, 2, 19, 2))
sketch12.addConstraint(Sketcher.Constraint("Tangent", 19, 1, 20, 1))
sketch12.addConstraint(Sketcher.Constraint("Tangent", 20, 2, 21, 2))
sketch12.addConstraint(Sketcher.Constraint("Tangent", 21, 1, 22, 1))
sketch12.addConstraint(Sketcher.Constraint("Tangent", 22, 2, 23, 2))
sketch12.addConstraint(Sketcher.Constraint("Tangent", 23, 1, 0, 1))
sketch12.addConstraint(Sketcher.Constraint("Vertical", 6))
sketch12.addConstraint(Sketcher.Constraint("Horizontal", 10))
sketch12.addConstraint(Sketcher.Constraint("Vertical", 12))
sketch12.addConstraint(Sketcher.Constraint("Horizontal", 13))
sketch12.addConstraint(Sketcher.Constraint("Vertical", 14))
sketch12.addConstraint(Sketcher.Constraint("Horizontal", 16))
sketch12.addConstraint(Sketcher.Constraint("Vertical", 20))
sketch12.addConstraint(Sketcher.Constraint("Coincident", 15, 3, 11, 3))
sketch12.addConstraint(Sketcher.Constraint("Coincident", 17, 3, 9, 3))
sketch12.addConstraint(Sketcher.Constraint("Coincident", 19, 3, 7, 3))
sketch12.addConstraint(Sketcher.Constraint("Coincident", 21, 3, 5, 3))
sketch12.addConstraint(Sketcher.Constraint("Coincident", 23, 3, 3, 3))
sketch12.addConstraint(Sketcher.Constraint("Equal", 3, 5))
sketch12.addConstraint(Sketcher.Constraint("Equal", 5, 7))
sketch12.addConstraint(Sketcher.Constraint("Equal", 7, 9))
sketch12.addConstraint(Sketcher.Constraint("Equal", 9, 11))
sketch12.addConstraint(Sketcher.Constraint("Equal", 17, 19))
sketch12.addConstraint(Sketcher.Constraint("Equal", 21, 23))
sketch12.addConstraint(Sketcher.Constraint("Perpendicular", 0, 1))
sketch12.addConstraint(Sketcher.Constraint("Perpendicular", 1, 2))
sketch12.addConstraint(Sketcher.Constraint("Perpendicular", 2, 4))
sketch12.addConstraint(Sketcher.Constraint("Perpendicular", 4, 8))
sketch12.addConstraint(Sketcher.Constraint("Radius", 3, Q("1 mm")))
sketch12.addConstraint(Sketcher.Constraint("Radius", 15, Q("3 mm")))
sketch12.addConstraint(Sketcher.Constraint("Angle", 0, Q("124 deg")))
sketch12.addConstraint(Sketcher.Constraint("DistanceX", 11, 3, 7, 3, Q("110 mm")))
sketch12.addConstraint(Sketcher.Constraint("DistanceY", -1, 1, 12, 2, Q("15.875 mm")))
sketch12.addConstraint(Sketcher.Constraint("DistanceX", 10, 2, 10, 1, Q("99.80284 mm")))
sketch12.addConstraint(Sketcher.Constraint("DistanceY", 6, 1, 6, 2, Q("20.450881 mm")))
sketch12.addConstraint(Sketcher.Constraint("DistanceY", 21, 1, -1, 1, Q("16.0638 mm")))
sketch12.addConstraint(Sketcher.Constraint("DistanceX", -1, 1, 3, 3, Q("32.190749 mm")))
sketch12.addConstraint(Sketcher.Constraint("DistanceY", 3, 3, -1, 1, Q("68.089919 mm")))
sketch12.addConstraint(Sketcher.Constraint("DistanceY", 0, 2, -1, 1, Q("62.929939 mm")))
pad4 = doc.addObject("PartDesign::Pad", "Pad003")
body.addObject(pad4)
pad4.Profile = sketch12
pad4.Length = 2
pad4.Reversed = True

sketch13 = doc.addObject("Sketcher::SketchObject", "Sketch012")
body.addObject(sketch13)
sketch13.Placement = App.Placement(Vector(-11.928241, -8.0457, 0), App.Rotation(Vector(0, 0, 1), Vector(-0.559192903, 0.829037573, 0), Vector(-0.829037573, -0.559192903, 0), "ZXY"))
sketch13.addGeometry(Part.LineSegment(Vector(-1797, -32.6, 0), Vector(-1797, -34.6, 0)), False)
sketch13.addGeometry(Part.ArcOfCircle(Part.Circle(Vector(-1795, -50.3, 0), Vector(0, 0, 1), 15.9), math.radians(-97), math.radians(97)), False)
sketch13.addGeometry(Part.LineSegment(Vector(-1797, -66.1, 0), Vector(-1797, -68.1, 0)), False)
sketch13.addGeometry(Part.ArcOfCircle(Part.Circle(Vector(-1795, -50.3, 0), Vector(0, 0, 1), 17.9), math.radians(-96), math.radians(96)), False)
sketch13.addConstraint(Sketcher.Constraint("Coincident", 0, 2, 1, 2))
sketch13.addConstraint(Sketcher.Constraint("Coincident", 1, 1, 2, 1))
sketch13.addConstraint(Sketcher.Constraint("Coincident", 2, 2, 3, 1))
sketch13.addConstraint(Sketcher.Constraint("Coincident", 3, 2, 0, 1))
sketch13.addConstraint(Sketcher.Constraint("Vertical", 0))
sketch13.addConstraint(Sketcher.Constraint("Vertical", 2))
sketch13.addConstraint(Sketcher.Constraint("Coincident", 3, 3, 1, 3))
sketch13.addConstraint(Sketcher.Constraint("Vertical", 0, 2, 1, 1))
sketch13.addConstraint(Sketcher.Constraint("DistanceX", 0, 2, 1, 3, Q("2 mm")))
sketch13.addConstraint(Sketcher.Constraint("Radius", 1, Q("15.875002 mm")))
sketch13.addConstraint(Sketcher.Constraint("Radius", 3, Q("17.875002 mm")))
sketch13.addConstraint(Sketcher.Constraint("DistanceX", 1, 3, -1, 1, Q("1794.9976 mm")))
sketch13.addConstraint(Sketcher.Constraint("DistanceY", 0, 2, -1, 1, Q("34.578831 mm")))
pad5 = doc.addObject("PartDesign::Pad", "Pad004")
body.addObject(pad5)
pad5.Profile = sketch13
pad5.Length = 2
pad5.Reversed = True

sketch14 = doc.addObject("Sketcher::SketchObject", "Sketch013")
body.addObject(sketch14)
sketch14.AttachmentSupport = (doc.YZ_Plane, [""])
sketch14.MapMode = "FlatFace"
sketch14.AttachmentOffset = App.Placement(Vector(0, 0, 2.009939), App.Rotation())
sketch14.addGeometry(Part.LineSegment(Vector(16.9, -1797, 0), Vector(15.7, -1797, 0)), False)
sketch14.addGeometry(Part.ArcOfCircle(Part.Circle(Vector(0, -1795, 0), Vector(0, 0, 1), 15.9), math.radians(-7), math.radians(187)), False)
sketch14.addGeometry(Part.LineSegment(Vector(-15.7, -1797, 0), Vector(-16.9, -1797, 0)), False)
sketch14.addGeometry(Part.ArcOfCircle(Part.Circle(Vector(0, -1795, 0), Vector(0, 0, 1), 17.1), math.radians(-7), math.radians(187)), False)
sketch14.addConstraint(Sketcher.Constraint("Coincident", 0, 2, 1, 1))
sketch14.addConstraint(Sketcher.Constraint("Coincident", 1, 2, 2, 1))
sketch14.addConstraint(Sketcher.Constraint("Coincident", 2, 2, 3, 2))
sketch14.addConstraint(Sketcher.Constraint("Coincident", 3, 1, 0, 1))
sketch14.addConstraint(Sketcher.Constraint("Horizontal", 0))
sketch14.addConstraint(Sketcher.Constraint("Horizontal", 2))
sketch14.addConstraint(Sketcher.Constraint("Coincident", 3, 3, 1, 3))
sketch14.addConstraint(Sketcher.Constraint("Symmetric", 0, 2, 1, 2, -2))
sketch14.addConstraint(Sketcher.Constraint("Radius", 1, Q("15.875 mm")))
sketch14.addConstraint(Sketcher.Constraint("DistanceY", 0, 2, 1, 3, Q("2 mm")))
sketch14.addConstraint(Sketcher.Constraint("Radius", 3, Q("17.051112 mm")))
sketch14.addConstraint(Sketcher.Constraint("DistanceY", 1, 3, -1, 1, Q("1794.9976 mm")))
pad6 = doc.addObject("PartDesign::Pad", "Pad005")
body.addObject(pad6)
pad6.Profile = sketch14
pad6.Length = 2
pad6.Reversed = True
doc.recompute()

fillet4 = doc.addObject("PartDesign::Fillet", "Fillet003")
body.addObject(fillet4)
fillet4.Base = (pad6, edges_at(pad6, [
    (74.278, -43.32, -1769.998),
    (15.113, -48.136, -1769.998),
    (0.01, 15.996, -1769.998),
    (116.01, -3.351, -1769.998),
    (110.398, 16.111, -1769.998),
    (52.911, 24.992, -1769.998),
    (115.659, -14.985, -1769.998),
    (115.879, 7.751, -1769.998),
    (104.221, 24.641, -1769.998),
    (0.889, 24.113, -1769.998),
    (0.141, -25.705, -1769.998),
    (31.618, -71.035, -1769.998),
    (-39.99, 0, -1769.998),
    (-18.99, -9, -1769.998),
    (-39.111, -8.121, -1769.998),
    (-39.111, 8.121, -1769.998),
    (-18.99, 9, -1769.998),
    (0.01, -17.414, -1769.998),
    (-0.283, -9.293, -1769.998),
    (-0.283, 9.293, -1769.998),
]))
fillet4.Radius = 1

doc.recompute()
